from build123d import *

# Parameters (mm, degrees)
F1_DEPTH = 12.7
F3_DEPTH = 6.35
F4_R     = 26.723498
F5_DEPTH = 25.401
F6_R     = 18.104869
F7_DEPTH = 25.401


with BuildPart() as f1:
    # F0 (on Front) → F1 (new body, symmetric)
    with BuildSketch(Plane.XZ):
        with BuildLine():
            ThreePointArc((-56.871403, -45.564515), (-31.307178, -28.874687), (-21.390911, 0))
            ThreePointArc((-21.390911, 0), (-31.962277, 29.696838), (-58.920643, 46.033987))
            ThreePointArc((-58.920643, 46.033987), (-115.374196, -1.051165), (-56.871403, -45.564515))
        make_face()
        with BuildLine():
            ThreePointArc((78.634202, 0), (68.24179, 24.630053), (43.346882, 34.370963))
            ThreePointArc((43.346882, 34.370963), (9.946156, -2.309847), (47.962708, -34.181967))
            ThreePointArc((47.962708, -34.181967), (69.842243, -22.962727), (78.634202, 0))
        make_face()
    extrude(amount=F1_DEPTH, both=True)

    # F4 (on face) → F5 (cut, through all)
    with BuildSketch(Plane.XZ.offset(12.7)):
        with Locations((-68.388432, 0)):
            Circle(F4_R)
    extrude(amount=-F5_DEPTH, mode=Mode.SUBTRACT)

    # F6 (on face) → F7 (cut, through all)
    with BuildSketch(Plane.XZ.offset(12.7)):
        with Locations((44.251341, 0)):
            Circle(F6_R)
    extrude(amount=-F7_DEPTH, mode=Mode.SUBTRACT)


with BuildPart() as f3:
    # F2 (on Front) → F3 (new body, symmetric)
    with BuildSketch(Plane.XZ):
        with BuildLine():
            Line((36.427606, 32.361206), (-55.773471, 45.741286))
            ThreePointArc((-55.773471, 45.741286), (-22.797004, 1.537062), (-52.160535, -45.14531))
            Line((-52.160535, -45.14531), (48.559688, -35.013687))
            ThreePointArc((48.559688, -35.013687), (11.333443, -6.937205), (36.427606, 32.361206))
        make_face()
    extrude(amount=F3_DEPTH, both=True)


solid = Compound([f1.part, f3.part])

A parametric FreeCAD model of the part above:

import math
import FreeCAD as App
import Part
import Sketcher

V = App.Vector
Q = App.Units.Quantity

doc = App.newDocument("Part")
params = doc.addObject("Spreadsheet::Sheet", "Params")
for row, (alias, value) in enumerate([
    ("pad1_length", "1 in"),
    ("pad2_length", "0.5 in"),
], start=1):
    params.set(f"A{row}", alias)
    params.set(f"B{row}", "=" + value)
    params.setAlias(f"B{row}", alias)

body = doc.addObject("PartDesign::Body", "Body")
body.AllowCompound = True

# Sketch on XZ plane
sketch1 = body.newObject("Sketcher::SketchObject", "Sketch")
sketch1.AttachmentSupport = (doc.getObject("XZ_Plane"), [""])
sketch1.MapMode = "FlatFace"
sketch1.addGeometry([
    Part.ArcOfCircle(Part.Circle(V(-68.388433, 0.000001, 0), V(0, 0, 1), 46.997522), math.radians(-75.81485), math.radians(-0.000001)),  # 0
    Part.ArcOfCircle(Part.Circle(V(-68.388433, -0.000001, 0), V(0, 0, 1), 46.997522), math.radians(0.000001), math.radians(78.378063)),  # 1
    Part.ArcOfCircle(Part.Circle(V(-68.388432, 0, 0), V(0, 0, 1), 46.997521), math.radians(78.378064), math.radians(284.185149)),  # 2
    Part.ArcOfCircle(Part.Circle(V(44.251341, 0.000001, 0), V(0, 0, 1), 34.382861), math.radians(-0.000001), math.radians(91.50737)),  # 3
    Part.ArcOfCircle(Part.Circle(V(44.251341, 0, 0), V(0, 0, 1), 34.382861), math.radians(91.507369), math.radians(276.196715)),  # 4
    Part.ArcOfCircle(Part.Circle(V(44.25134, 0.000001, 0), V(0, 0, 1), 34.382862), math.radians(-83.803284), math.radians(-0.000002)),  # 5
], False)
sketch1.addConstraint([
    Sketcher.Constraint("Tangent", 0, 2, 1, 1),
    Sketcher.Constraint("Tangent", 1, 2, 2, 1),
    Sketcher.Constraint("Tangent", 2, 2, 0, 1),
    Sketcher.Constraint("Tangent", 3, 2, 4, 1),
    Sketcher.Constraint("Tangent", 4, 2, 5, 1),
    Sketcher.Constraint("Tangent", 5, 2, 3, 1),
    Sketcher.Constraint("PointOnObject", 0, 3, -1),
    Sketcher.Constraint("PointOnObject", 3, 3, -1),
    Sketcher.Constraint("PointOnObject", 0, 2, -1),
    Sketcher.Constraint("PointOnObject", 5, 2, -1),
    Sketcher.Constraint("Radius", 2, Q("46.997521 mm")),
    Sketcher.Constraint("Radius", 3, Q("34.382861 mm")),
    Sketcher.Constraint("DistanceX", -1, 1, 5, 2, Q("78.634202 mm")),
    Sketcher.Constraint("DistanceX", 2, 3, -1, 1, Q("68.388432 mm")),
    Sketcher.Constraint("DistanceX", -1, 1, 3, 2, Q("43.346882 mm")),
    Sketcher.Constraint("DistanceX", 0, 3, 1, 2, Q("9.46779 mm")),
    Sketcher.Constraint("DistanceX", 1, 3, 2, 2, Q("11.51703 mm")),
    Sketcher.Constraint("DistanceY", 4, 2, 5, 3, Q("34.181968 mm")),
])
pad1 = body.newObject("PartDesign::Pad", "Pad")
pad1.Profile = sketch1
pad1.setExpression("Length", "Params.pad1_length")
pad1.Midplane = True

# Sketch on XZ plane
sketch2 = body.newObject("Sketcher::SketchObject", "Sketch001")
sketch2.AttachmentSupport = (doc.getObject("XZ_Plane"), [""])
sketch2.MapMode = "FlatFace"
sketch2.AttachmentOffset = App.Placement(V(0, 0, 0.5 * 25.4), App.Rotation())
sketch2.addGeometry(Part.Circle(V(-68.388432, 0, 0), V(0, 0, 1), 26.723498), False)
sketch2.addConstraint([
    Sketcher.Constraint("PointOnObject", 0, 3, -1),
    Sketcher.Constraint("Diameter", 0, Q("53.446996 mm")),
    Sketcher.Constraint("DistanceX", 0, 3, -1, 1, Q("68.388432 mm")),
])
pocket1 = body.newObject("PartDesign::Pocket", "Pocket")
pocket1.Profile = sketch2
pocket1.Type = "ThroughAll"

# Sketch on XZ plane
sketch3 = body.newObject("Sketcher::SketchObject", "Sketch002")
sketch3.AttachmentSupport = (doc.getObject("XZ_Plane"), [""])
sketch3.MapMode = "FlatFace"
sketch3.AttachmentOffset = App.Placement(V(0, 0, 0.5 * 25.4), App.Rotation())
sketch3.addGeometry(Part.Circle(V(44.251341, 0, 0), V(0, 0, 1), 18.104869), False)
sketch3.addConstraint([
    Sketcher.Constraint("PointOnObject", 0, 3, -1),
    Sketcher.Constraint("Diameter", 0, Q("36.209738 mm")),
    Sketcher.Constraint("DistanceX", -1, 1, 0, 3, Q("44.251341 mm")),
])
pocket2 = body.newObject("PartDesign::Pocket", "Pocket001")
pocket2.Profile = sketch3
pocket2.Type = "ThroughAll"
body2 = doc.addObject("PartDesign::Body", "Body001")

# Sketch on XZ plane
sketch4 = body2.newObject("Sketcher::SketchObject", "Sketch003")
sketch4.AttachmentSupport = (doc.getObject("XZ_Plane001"), [""])
sketch4.MapMode = "FlatFace"
sketch4.addGeometry([
    Part.LineSegment(V(36.427606, 32.361206, 0), V(-55.773471, 45.741286, 0)),
    Part.ArcOfCircle(Part.Circle(V(-71.508301, -0.399316, 0), V(0, 0, 1), 48.74977), math.radians(-66.616778), math.radians(71.169639)),
    Part.LineSegment(V(-52.160535, -45.14531, 0), V(48.559688, -35.013687, 0)),
    Part.ArcOfCircle(Part.Circle(V(45.123375, -0.85271, 0), V(0, 0, 1), 34.333375), math.radians(104.671367), math.radians(275.744161)),
], False)
sketch4.addConstraint([
    Sketcher.Constraint("Coincident", 0, 2, 1, 2),
    Sketcher.Constraint("Coincident", 1, 1, 2, 1),
    Sketcher.Constraint("Tangent", 2, 2, 3, 2),
    Sketcher.Constraint("Coincident", 3, 1, 0, 1),
    Sketcher.Constraint("Radius", 1, Q("48.74977 mm")),
    Sketcher.Constraint("Radius", 3, Q("34.333375 mm")),
    Sketcher.Constraint("DistanceX", 1, 3, -1, 1, Q("71.508301 mm")),
    Sketcher.Constraint("DistanceY", 1, 1, 3, 3, Q("44.2926 mm")),
    Sketcher.Constraint("Distance", 2, Q("101.228519 mm")),
    Sketcher.Constraint("DistanceY", 3, 3, -1, 1, Q("0.85271 mm")),
    Sketcher.Constraint("DistanceX", 0, 2, -1, 1, Q("55.773471 mm")),
    Sketcher.Constraint("DistanceX", 1, 3, 2, 2, Q("120.067989 mm")),
    Sketcher.Constraint("DistanceX", 3, 1, 3, 3, Q("8.695769 mm")),
])
pad2 = body2.newObject("PartDesign::Pad", "Pad001")
pad2.Profile = sketch4
pad2.setExpression("Length", "Params.pad2_length")
pad2.Midplane = True

doc.recompute()
